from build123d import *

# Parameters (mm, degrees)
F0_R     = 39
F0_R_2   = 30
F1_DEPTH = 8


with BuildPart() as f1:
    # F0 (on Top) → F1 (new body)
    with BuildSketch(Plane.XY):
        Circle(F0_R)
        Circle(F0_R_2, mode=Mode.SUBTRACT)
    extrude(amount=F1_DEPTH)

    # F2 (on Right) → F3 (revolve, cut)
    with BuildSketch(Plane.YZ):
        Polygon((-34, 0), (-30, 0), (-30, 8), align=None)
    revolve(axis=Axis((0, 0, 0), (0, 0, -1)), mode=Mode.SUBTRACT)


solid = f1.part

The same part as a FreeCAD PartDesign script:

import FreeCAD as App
import Part
import Sketcher

V = App.Vector


def add_polygon(sketch, points):
    """Adds a closed chain of lines whose ends are joined by coincident constraints."""
    first, n = sketch.GeometryCount, len(points)
    for a, b in zip(points, points[1:] + points[:1]):
        sketch.addGeometry(Part.LineSegment(App.Vector(*a, 0), App.Vector(*b, 0)), False)
    for i in range(n):
        sketch.addConstraint(Sketcher.Constraint("Coincident", first + i, 2, first + (i + 1) % n, 1))

doc = App.newDocument("Part")
body = doc.addObject("PartDesign::Body", "Body")

# Sketch on XY plane
sketch1 = body.newObject("Sketcher::SketchObject", "Sketch")
sketch1.AttachmentSupport = (doc.getObject("XY_Plane"), [""])
sketch1.MapMode = "FlatFace"
sketch1.addGeometry(Part.Circle(V(0, 0, 0), V(0, 0, 1), 39), False)
sketch1.addGeometry(Part.Circle(V(0, 0, 0), V(0, 0, 1), 30), False)
sketch1.addConstraint(Sketcher.Constraint("Coincident", 0, 3, -1, 1))
sketch1.addConstraint(Sketcher.Constraint("Coincident", 1, 3, -1, 1))
sketch1.addConstraint(Sketcher.Constraint("Diameter", 0, 78.0))
sketch1.addConstraint(Sketcher.Constraint("Diameter", 1, 60.0))
pad1 = body.newObject("PartDesign::Pad", "Pad")
pad1.Profile = sketch1
pad1.Length = 8

# Sketch on YZ plane
sketch2 = body.newObject("Sketcher::SketchObject", "Sketch001")
sketch2.AttachmentSupport = (doc.getObject("YZ_Plane"), [""])
sketch2.MapMode = "FlatFace"
add_polygon(sketch2, [(-34, 0), (-30, 0), (-30, 8)])  # lines 0-2
sketch2.addConstraint(Sketcher.Constraint("Horizontal", 0))
sketch2.addConstraint(Sketcher.Constraint("Vertical", 1))
sketch2.addConstraint(Sketcher.Constraint("PointOnObject", 0, 2, -1))
sketch2.addConstraint(Sketcher.Constraint("DistanceX", 0, 1, 0, 2, 4.0))
sketch2.addConstraint(Sketcher.Constraint("DistanceY", 1, 1, 1, 2, 8.0))
sketch2.addConstraint(Sketcher.Constraint("DistanceX", 0, 2, -1, 1, 30.0))
groove = body.newObject("PartDesign::Groove", "Groove")
groove.Profile = sketch2
groove.ReferenceAxis = (sketch2, ["V_Axis"])
groove.Angle = 360

doc.recompute()
